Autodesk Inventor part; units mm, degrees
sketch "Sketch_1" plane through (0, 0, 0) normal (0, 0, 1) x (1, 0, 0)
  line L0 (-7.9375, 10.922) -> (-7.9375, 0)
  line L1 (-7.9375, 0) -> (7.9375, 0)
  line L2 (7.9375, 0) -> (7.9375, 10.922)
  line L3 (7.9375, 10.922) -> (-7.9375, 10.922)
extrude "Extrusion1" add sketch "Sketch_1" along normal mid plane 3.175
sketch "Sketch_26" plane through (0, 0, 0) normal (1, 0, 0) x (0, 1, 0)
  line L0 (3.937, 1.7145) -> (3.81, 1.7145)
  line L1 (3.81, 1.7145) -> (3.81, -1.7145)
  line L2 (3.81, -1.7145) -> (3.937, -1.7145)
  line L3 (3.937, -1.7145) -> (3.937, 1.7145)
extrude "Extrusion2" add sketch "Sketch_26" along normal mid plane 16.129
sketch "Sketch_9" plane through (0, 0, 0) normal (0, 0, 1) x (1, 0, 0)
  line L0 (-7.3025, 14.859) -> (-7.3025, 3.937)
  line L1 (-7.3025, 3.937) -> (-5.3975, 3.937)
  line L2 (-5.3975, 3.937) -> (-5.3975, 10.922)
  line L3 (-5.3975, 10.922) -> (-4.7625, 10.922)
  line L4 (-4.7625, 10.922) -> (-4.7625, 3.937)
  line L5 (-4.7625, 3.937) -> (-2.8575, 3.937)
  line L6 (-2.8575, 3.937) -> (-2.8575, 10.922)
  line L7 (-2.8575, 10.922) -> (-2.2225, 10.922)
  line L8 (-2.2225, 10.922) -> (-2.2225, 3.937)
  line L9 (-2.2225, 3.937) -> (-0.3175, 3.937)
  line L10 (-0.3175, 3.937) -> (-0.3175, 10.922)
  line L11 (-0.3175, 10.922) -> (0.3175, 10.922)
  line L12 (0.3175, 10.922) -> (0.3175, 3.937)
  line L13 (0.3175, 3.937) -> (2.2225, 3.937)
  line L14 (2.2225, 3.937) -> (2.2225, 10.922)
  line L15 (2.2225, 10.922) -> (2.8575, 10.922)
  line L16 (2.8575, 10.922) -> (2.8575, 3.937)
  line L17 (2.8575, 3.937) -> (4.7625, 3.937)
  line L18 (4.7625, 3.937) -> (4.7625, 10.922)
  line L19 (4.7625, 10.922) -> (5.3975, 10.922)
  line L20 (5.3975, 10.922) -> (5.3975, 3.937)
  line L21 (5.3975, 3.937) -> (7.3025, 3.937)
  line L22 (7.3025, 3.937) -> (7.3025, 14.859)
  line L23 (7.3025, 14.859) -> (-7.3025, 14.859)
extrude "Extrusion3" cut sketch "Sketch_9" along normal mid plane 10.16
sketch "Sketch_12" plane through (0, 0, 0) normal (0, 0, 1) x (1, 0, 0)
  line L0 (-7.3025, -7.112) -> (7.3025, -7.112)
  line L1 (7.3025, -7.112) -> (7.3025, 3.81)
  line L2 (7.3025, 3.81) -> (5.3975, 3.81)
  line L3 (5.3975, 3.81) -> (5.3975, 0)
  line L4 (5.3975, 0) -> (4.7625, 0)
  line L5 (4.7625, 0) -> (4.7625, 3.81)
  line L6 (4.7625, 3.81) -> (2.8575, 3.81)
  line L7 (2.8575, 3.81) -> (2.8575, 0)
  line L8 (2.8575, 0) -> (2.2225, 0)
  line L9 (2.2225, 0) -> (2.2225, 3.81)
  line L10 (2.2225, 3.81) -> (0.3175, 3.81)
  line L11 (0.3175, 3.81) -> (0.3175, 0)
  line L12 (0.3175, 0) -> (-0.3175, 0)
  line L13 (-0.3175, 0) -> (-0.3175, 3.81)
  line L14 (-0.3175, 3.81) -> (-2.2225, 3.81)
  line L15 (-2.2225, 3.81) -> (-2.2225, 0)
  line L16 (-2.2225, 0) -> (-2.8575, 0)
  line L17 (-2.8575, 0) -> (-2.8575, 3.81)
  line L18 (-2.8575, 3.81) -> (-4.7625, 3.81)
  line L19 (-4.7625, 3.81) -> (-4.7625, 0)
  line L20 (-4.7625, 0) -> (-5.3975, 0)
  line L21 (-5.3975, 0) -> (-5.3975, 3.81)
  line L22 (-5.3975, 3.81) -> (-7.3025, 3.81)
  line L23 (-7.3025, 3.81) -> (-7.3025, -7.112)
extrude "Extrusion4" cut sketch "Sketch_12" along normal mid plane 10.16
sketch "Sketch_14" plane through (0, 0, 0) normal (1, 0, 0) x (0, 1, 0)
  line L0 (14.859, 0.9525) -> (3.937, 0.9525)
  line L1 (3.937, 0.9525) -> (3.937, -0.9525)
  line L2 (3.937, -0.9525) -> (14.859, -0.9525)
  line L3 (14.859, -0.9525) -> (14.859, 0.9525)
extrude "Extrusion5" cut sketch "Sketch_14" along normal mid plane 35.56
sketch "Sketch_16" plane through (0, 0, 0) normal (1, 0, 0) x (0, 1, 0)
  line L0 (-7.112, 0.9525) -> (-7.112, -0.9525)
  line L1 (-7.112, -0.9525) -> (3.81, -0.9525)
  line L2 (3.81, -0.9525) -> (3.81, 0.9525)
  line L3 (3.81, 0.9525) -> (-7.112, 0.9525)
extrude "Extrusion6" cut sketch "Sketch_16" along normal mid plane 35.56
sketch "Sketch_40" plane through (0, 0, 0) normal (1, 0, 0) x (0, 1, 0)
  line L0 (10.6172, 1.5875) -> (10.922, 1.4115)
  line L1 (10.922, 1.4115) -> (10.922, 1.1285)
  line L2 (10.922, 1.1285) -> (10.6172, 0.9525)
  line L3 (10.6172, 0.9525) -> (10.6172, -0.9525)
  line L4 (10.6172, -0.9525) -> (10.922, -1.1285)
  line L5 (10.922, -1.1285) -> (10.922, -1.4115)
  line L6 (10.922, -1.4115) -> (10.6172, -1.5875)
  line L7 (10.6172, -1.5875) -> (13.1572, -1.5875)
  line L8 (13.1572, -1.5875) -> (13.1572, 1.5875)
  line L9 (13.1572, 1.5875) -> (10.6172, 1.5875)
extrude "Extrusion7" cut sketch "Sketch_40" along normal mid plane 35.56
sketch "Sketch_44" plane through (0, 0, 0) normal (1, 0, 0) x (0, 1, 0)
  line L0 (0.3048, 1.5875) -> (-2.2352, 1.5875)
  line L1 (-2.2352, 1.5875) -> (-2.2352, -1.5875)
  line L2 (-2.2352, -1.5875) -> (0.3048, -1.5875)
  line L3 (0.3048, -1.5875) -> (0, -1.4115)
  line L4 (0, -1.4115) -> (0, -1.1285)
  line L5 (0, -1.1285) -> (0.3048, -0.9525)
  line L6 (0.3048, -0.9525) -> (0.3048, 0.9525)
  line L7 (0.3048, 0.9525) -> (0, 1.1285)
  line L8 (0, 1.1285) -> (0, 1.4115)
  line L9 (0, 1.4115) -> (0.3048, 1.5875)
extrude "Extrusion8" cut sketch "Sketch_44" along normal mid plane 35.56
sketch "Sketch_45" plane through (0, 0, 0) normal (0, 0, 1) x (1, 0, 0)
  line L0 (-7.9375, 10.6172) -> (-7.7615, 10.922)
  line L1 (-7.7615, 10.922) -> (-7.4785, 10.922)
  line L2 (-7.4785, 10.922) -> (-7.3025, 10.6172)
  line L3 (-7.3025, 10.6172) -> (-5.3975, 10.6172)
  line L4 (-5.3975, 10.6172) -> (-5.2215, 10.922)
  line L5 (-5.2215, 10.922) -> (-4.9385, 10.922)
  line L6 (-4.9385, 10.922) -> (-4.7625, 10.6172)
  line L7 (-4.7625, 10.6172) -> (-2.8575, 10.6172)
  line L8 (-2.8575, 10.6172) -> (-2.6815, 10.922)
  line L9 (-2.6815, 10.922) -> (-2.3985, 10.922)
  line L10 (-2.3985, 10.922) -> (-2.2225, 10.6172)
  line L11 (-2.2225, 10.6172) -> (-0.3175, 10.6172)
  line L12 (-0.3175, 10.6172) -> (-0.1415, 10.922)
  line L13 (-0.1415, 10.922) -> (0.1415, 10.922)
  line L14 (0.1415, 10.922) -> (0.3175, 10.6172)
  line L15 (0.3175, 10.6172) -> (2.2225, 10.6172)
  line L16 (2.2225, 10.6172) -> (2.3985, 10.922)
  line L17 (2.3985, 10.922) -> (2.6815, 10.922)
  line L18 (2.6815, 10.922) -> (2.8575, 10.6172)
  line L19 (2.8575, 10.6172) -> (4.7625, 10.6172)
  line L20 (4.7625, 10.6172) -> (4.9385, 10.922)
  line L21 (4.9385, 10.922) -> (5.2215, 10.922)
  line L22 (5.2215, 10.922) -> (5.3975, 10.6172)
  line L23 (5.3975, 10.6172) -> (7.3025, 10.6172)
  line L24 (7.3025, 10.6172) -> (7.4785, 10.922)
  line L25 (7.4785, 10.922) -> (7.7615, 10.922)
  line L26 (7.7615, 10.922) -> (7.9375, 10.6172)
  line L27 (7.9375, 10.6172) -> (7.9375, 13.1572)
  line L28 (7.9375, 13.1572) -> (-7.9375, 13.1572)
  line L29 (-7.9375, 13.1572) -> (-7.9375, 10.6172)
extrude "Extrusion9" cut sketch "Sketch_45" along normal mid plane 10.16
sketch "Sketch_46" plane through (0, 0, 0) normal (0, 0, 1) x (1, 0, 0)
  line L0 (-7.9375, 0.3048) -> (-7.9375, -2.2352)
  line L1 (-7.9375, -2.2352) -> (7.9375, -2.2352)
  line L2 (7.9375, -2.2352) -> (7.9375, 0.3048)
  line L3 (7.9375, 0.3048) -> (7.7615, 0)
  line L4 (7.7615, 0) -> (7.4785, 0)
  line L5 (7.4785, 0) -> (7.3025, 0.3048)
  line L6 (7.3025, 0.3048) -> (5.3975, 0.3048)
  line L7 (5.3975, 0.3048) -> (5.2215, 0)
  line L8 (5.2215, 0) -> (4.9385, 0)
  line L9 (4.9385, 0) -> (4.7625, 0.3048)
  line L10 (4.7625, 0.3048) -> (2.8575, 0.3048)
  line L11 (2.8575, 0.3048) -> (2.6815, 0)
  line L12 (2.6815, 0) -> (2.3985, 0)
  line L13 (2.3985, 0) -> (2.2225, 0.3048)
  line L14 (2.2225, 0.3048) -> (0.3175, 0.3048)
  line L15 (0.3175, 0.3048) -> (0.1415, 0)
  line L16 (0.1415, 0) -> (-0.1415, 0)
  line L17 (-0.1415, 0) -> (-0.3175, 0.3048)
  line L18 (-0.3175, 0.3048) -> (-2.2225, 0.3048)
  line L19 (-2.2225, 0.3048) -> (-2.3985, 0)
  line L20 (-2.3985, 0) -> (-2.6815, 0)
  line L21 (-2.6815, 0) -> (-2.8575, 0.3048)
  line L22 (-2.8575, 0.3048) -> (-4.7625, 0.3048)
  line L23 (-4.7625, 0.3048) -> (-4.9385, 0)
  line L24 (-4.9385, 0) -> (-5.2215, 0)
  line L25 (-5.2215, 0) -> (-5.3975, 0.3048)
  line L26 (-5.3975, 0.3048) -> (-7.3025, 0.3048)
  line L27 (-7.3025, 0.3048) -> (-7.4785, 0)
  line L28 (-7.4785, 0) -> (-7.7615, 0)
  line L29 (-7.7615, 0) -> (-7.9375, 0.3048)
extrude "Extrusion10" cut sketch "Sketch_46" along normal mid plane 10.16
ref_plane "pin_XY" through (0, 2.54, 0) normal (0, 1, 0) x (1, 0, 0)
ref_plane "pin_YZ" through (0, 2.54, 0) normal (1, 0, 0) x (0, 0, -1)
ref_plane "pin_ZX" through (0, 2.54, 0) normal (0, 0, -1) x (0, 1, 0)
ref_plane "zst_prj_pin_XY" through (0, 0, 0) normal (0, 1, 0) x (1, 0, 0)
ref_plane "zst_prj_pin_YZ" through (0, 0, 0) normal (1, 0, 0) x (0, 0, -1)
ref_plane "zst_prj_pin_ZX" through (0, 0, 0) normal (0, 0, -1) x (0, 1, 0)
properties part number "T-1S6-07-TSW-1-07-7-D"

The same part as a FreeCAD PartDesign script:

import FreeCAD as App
import Part
import Sketcher
Q = App.Units.Quantity


def add_polygon(sketch, points):
    """Adds a closed chain of lines whose ends are joined by coincident constraints."""
    first, n = sketch.GeometryCount, len(points)
    for a, b in zip(points, points[1:] + points[:1]):
        sketch.addGeometry(Part.LineSegment(App.Vector(*a, 0), App.Vector(*b, 0)), False)
    for i in range(n):
        sketch.addConstraint(Sketcher.Constraint("Coincident", first + i, 2, first + (i + 1) % n, 1))

doc = App.newDocument("Part")
body = doc.addObject("PartDesign::Body", "Body")

sketch1 = body.newObject("Sketcher::SketchObject", "Sketch")
sketch1.AttachmentSupport = (doc.getObject("XY_Plane"), [""])
sketch1.MapMode = "FlatFace"
add_polygon(sketch1, [(8, 11), (-8, 11), (-8, 0), (8, 0)])
sketch1.addConstraint([
    Sketcher.Constraint("Horizontal", 0),
    Sketcher.Constraint("Vertical", 1),
    Sketcher.Constraint("Horizontal", 2),
    Sketcher.Constraint("Vertical", 3),
    Sketcher.Constraint("Symmetric", 1, 2, 2, 2, -1, 1),
    Sketcher.Constraint("DistanceY", 1, 2, 1, 1, Q("0.43 in")),
    Sketcher.Constraint("DistanceX", 0, 2, 0, 1, Q("0.625 in")),
])
pad1 = body.newObject("PartDesign::Pad", "Pad")
pad1.Profile = sketch1
pad1.Length = Q("0.125 in")
pad1.Midplane = True

sketch2 = body.newObject("Sketcher::SketchObject", "Sketch001")
sketch2.AttachmentSupport = (doc.getObject("YZ_Plane"), [""])
sketch2.MapMode = "FlatFace"
add_polygon(sketch2, [(3.94, -1.71), (3.94, 1.71), (3.81, 1.71), (3.81, -1.71)])
sketch2.addConstraint([
    Sketcher.Constraint("Vertical", 0),
    Sketcher.Constraint("Horizontal", 1),
    Sketcher.Constraint("Vertical", 2),
    Sketcher.Constraint("Horizontal", 3),
    Sketcher.Constraint("DistanceX", 1, 2, 1, 1, Q("0.005 in")),
    Sketcher.Constraint("DistanceY", 0, 1, 0, 2, Q("0.135 in")),
    Sketcher.Constraint("DistanceX", -1, 1, 1, 2, Q("0.15 in")),
    Sketcher.Constraint("DistanceY", -1, 1, 0, 2, Q("0.0675 in")),
])
pad2 = body.newObject("PartDesign::Pad", "Pad001")
pad2.Profile = sketch2
pad2.Length = Q("0.635 in")
pad2.Midplane = True

sketch3 = body.newObject("Sketcher::SketchObject", "Sketch002")
sketch3.AttachmentSupport = (doc.getObject("XY_Plane"), [""])
sketch3.MapMode = "FlatFace"
add_polygon(sketch3, [(7.3, 14.9), (-7.3, 14.9), (-7.3, 3.9), (-5.4, 3.9), (-5.4, 10.9), (-4.8, 10.9), (-4.8, 3.9), (-2.9, 3.9), (-2.9, 10.9), (-2.2, 10.9), (-2.2, 3.9), (-0.3, 3.9), (-0.3, 10.9), (0.3, 10.9), (0.3, 3.9), (2.2, 3.9), (2.2, 10.9), (2.9, 10.9), (2.9, 3.9), (4.8, 3.9), (4.8, 10.9), (5.4, 10.9), (5.4, 3.9), (7.3, 3.9)])
sketch3.addConstraint([
    Sketcher.Constraint("Horizontal", 0),
    Sketcher.Constraint("Vertical", 1),
    Sketcher.Constraint("Horizontal", 2),
    Sketcher.Constraint("Vertical", 3),
    Sketcher.Constraint("Horizontal", 4),
    Sketcher.Constraint("Vertical", 5),
    Sketcher.Constraint("Horizontal", 6),
    Sketcher.Constraint("Vertical", 7),
    Sketcher.Constraint("Horizontal", 8),
    Sketcher.Constraint("Vertical", 9),
    Sketcher.Constraint("Horizontal", 10),
    Sketcher.Constraint("Vertical", 11),
    Sketcher.Constraint("Horizontal", 12),
    Sketcher.Constraint("Vertical", 13),
    Sketcher.Constraint("Horizontal", 14),
    Sketcher.Constraint("Vertical", 15),
    Sketcher.Constraint("Horizontal", 16),
    Sketcher.Constraint("Vertical", 17),
    Sketcher.Constraint("Horizontal", 18),
    Sketcher.Constraint("Vertical", 19),
    Sketcher.Constraint("Horizontal", 20),
    Sketcher.Constraint("Vertical", 21),
    Sketcher.Constraint("Horizontal", 22),
    Sketcher.Constraint("Vertical", 23),
    Sketcher.Constraint("Symmetric", 10, 2, 13, 2, -2),
    Sketcher.Constraint("Symmetric", 8, 2, 15, 2, -2),
    Sketcher.Constraint("Symmetric", 6, 2, 17, 2, -2),
    Sketcher.Constraint("Symmetric", 4, 2, 19, 2, -2),
    Sketcher.Constraint("Symmetric", 2, 2, 21, 2, -2),
    Sketcher.Constraint("Horizontal", 2, 2, 5, 2),
    Sketcher.Constraint("Horizontal", 4, 2, 7, 2),
    Sketcher.Constraint("Horizontal", 6, 2, 9, 2),
    Sketcher.Constraint("Horizontal", 8, 2, 11, 2),
    Sketcher.Constraint("Equal", 2, 6),
    Sketcher.Constraint("Equal", 4, 8),
    Sketcher.Constraint("Equal", 6, 10),
    Sketcher.Constraint("Equal", 8, 12),
    Sketcher.Constraint("Equal", 18, 22),
    Sketcher.Constraint("DistanceY", 1, 2, 1, 1, Q("0.43 in")),
    Sketcher.Constraint("DistanceX", 0, 2, 4, 2, Q("0.1 in")),
    Sketcher.Constraint("DistanceX", 0, 2, 0, 1, Q("0.575 in")),
    Sketcher.Constraint("DistanceY", 3, 1, 3, 2, Q("0.275 in")),
    Sketcher.Constraint("DistanceY", -1, 1, 3, 2, Q("0.43 in")),
])
pocket1 = body.newObject("PartDesign::Pocket", "Pocket")
pocket1.Profile = sketch3
pocket1.Length = Q("0.4 in")
pocket1.Midplane = True

sketch4 = body.newObject("Sketcher::SketchObject", "Sketch003")
sketch4.AttachmentSupport = (doc.getObject("XY_Plane"), [""])
sketch4.MapMode = "FlatFace"
add_polygon(sketch4, [(-7.3, 3.8), (-7.3, -7.1), (7.3, -7.1), (7.3, 3.8), (5.4, 3.8), (5.4, 0), (4.8, 0), (4.8, 3.8), (2.9, 3.8), (2.9, 0), (2.2, 0), (2.2, 3.8), (0.3, 3.8), (0.3, 0), (-0.3, 0), (-0.3, 3.8), (-2.2, 3.8), (-2.2, 0), (-2.9, 0), (-2.9, 3.8), (-4.8, 3.8), (-4.8, 0), (-5.4, 0), (-5.4, 3.8)])
sketch4.addConstraint([
    Sketcher.Constraint("Vertical", 0),
    Sketcher.Constraint("Horizontal", 1),
    Sketcher.Constraint("Vertical", 2),
    Sketcher.Constraint("Horizontal", 3),
    Sketcher.Constraint("Vertical", 4),
    Sketcher.Constraint("Horizontal", 5),
    Sketcher.Constraint("Vertical", 6),
    Sketcher.Constraint("Horizontal", 7),
    Sketcher.Constraint("Vertical", 8),
    Sketcher.Constraint("Horizontal", 9),
    Sketcher.Constraint("Vertical", 10),
    Sketcher.Constraint("Horizontal", 11),
    Sketcher.Constraint("Vertical", 12),
    Sketcher.Constraint("Horizontal", 13),
    Sketcher.Constraint("Vertical", 14),
    Sketcher.Constraint("Horizontal", 15),
    Sketcher.Constraint("Vertical", 16),
    Sketcher.Constraint("Horizontal", 17),
    Sketcher.Constraint("Vertical", 18),
    Sketcher.Constraint("Horizontal", 19),
    Sketcher.Constraint("Vertical", 20),
    Sketcher.Constraint("Horizontal", 21),
    Sketcher.Constraint("Vertical", 22),
    Sketcher.Constraint("Horizontal", 23),
    Sketcher.Constraint("Symmetric", 12, 2, 13, 2, -1, 1),
    Sketcher.Constraint("Symmetric", 9, 2, 16, 2, -1, 1),
    Sketcher.Constraint("Symmetric", 5, 2, 20, 2, -1, 1),
    Sketcher.Constraint("Symmetric", 8, 2, 17, 2, -2),
    Sketcher.Constraint("Symmetric", 4, 2, 21, 2, -2),
    Sketcher.Constraint("Symmetric", 2, 2, 23, 2, -2),
    Sketcher.Constraint("Horizontal", 3, 2, 6, 2),
    Sketcher.Constraint("Horizontal", 7, 2, 10, 2),
    Sketcher.Constraint("Horizontal", 11, 2, 14, 2),
    Sketcher.Constraint("Horizontal", 15, 2, 18, 2),
    Sketcher.Constraint("Equal", 3, 7),
    Sketcher.Constraint("Equal", 5, 9),
    Sketcher.Constraint("Equal", 7, 11),
    Sketcher.Constraint("Equal", 9, 13),
    Sketcher.Constraint("DistanceY", 0, 2, 0, 1, Q("0.43 in")),
    Sketcher.Constraint("DistanceY", 4, 2, 4, 1, Q("0.15 in")),
    Sketcher.Constraint("DistanceX", 0, 2, 3, 2, Q("0.5 in")),
    Sketcher.Constraint("DistanceX", 1, 1, 1, 2, Q("0.575 in")),
])
pocket2 = body.newObject("PartDesign::Pocket", "Pocket001")
pocket2.Profile = sketch4
pocket2.Length = Q("0.4 in")
pocket2.Midplane = True

sketch5 = body.newObject("Sketcher::SketchObject", "Sketch004")
sketch5.AttachmentSupport = (doc.getObject("YZ_Plane"), [""])
sketch5.MapMode = "FlatFace"
add_polygon(sketch5, [(14.9, -1), (14.9, 1), (3.9, 1), (3.9, -1)])
sketch5.addConstraint([
    Sketcher.Constraint("Vertical", 0),
    Sketcher.Constraint("Horizontal", 1),
    Sketcher.Constraint("Vertical", 2),
    Sketcher.Constraint("Horizontal", 3),
    Sketcher.Constraint("DistanceX", 1, 2, 1, 1, Q("0.43 in")),
    Sketcher.Constraint("DistanceY", 0, 1, 0, 2, Q("0.075 in")),
    Sketcher.Constraint("DistanceX", -1, 1, 0, 2, Q("0.585 in")),
    Sketcher.Constraint("DistanceY", -1, 1, 0, 2, Q("0.0375 in")),
])
pocket3 = body.newObject("PartDesign::Pocket", "Pocket002")
pocket3.Profile = sketch5
pocket3.Length = Q("1.4 in")
pocket3.Midplane = True

sketch6 = body.newObject("Sketcher::SketchObject", "Sketch005")
sketch6.AttachmentSupport = (doc.getObject("YZ_Plane"), [""])
sketch6.MapMode = "FlatFace"
add_polygon(sketch6, [(3.8, 1), (-7.1, 1), (-7.1, -1), (3.8, -1)])
sketch6.addConstraint([
    Sketcher.Constraint("Horizontal", 0),
    Sketcher.Constraint("Vertical", 1),
    Sketcher.Constraint("Horizontal", 2),
    Sketcher.Constraint("Vertical", 3),
    Sketcher.Constraint("DistanceX", 0, 2, 0, 1, Q("0.43 in")),
    Sketcher.Constraint("DistanceY", 1, 2, 1, 1, Q("0.075 in")),
    Sketcher.Constraint("DistanceX", 0, 2, -1, 1, Q("0.28 in")),
    Sketcher.Constraint("DistanceY", -1, 1, 0, 2, Q("0.0375 in")),
])
pocket4 = body.newObject("PartDesign::Pocket", "Pocket003")
pocket4.Profile = sketch6
pocket4.Length = Q("1.4 in")
pocket4.Midplane = True

sketch7 = body.newObject("Sketcher::SketchObject", "Sketch006")
sketch7.AttachmentSupport = (doc.getObject("YZ_Plane"), [""])
sketch7.MapMode = "FlatFace"
add_polygon(sketch7, [(13.16, 1.59), (10.62, 1.59), (10.92, 1.41), (10.92, 1.13), (10.62, 0.95), (10.62, -0.95), (10.92, -1.13), (10.92, -1.41), (10.62, -1.59), (13.16, -1.59)])
sketch7.addConstraint([
    Sketcher.Constraint("Horizontal", 0),
    Sketcher.Constraint("Vertical", 2),
    Sketcher.Constraint("Vertical", 4),
    Sketcher.Constraint("Vertical", 6),
    Sketcher.Constraint("Horizontal", 8),
    Sketcher.Constraint("Vertical", 9),
    Sketcher.Constraint("Symmetric", 2, 2, 5, 2, -1),
    Sketcher.Constraint("Symmetric", 0, 2, 7, 2, -1),
    Sketcher.Constraint("Parallel", 1, 5),
    Sketcher.Constraint("Parallel", 3, 7),
    Sketcher.Constraint("Vertical", 0, 2, 3, 2),
    Sketcher.Constraint("Equal", 2, 6),
    Sketcher.Constraint("DistanceX", 0, 2, 0, 1, Q("0.1 in")),
    Sketcher.Constraint("DistanceY", 4, 2, 0, 2, Q("0.1 in")),
    Sketcher.Constraint("DistanceY", 4, 2, 4, 1, Q("0.075 in")),
    Sketcher.Constraint("DistanceX", -1, 1, 1, 2, Q("0.43 in")),
    Sketcher.Constraint("DistanceX", -1, 1, 0, 2, Q("0.418 in")),
    Sketcher.Constraint("DistanceY", 2, 2, 2, 1, 0.283),
])
pocket5 = body.newObject("PartDesign::Pocket", "Pocket004")
pocket5.Profile = sketch7
pocket5.Length = Q("1.4 in")
pocket5.Midplane = True

sketch8 = body.newObject("Sketcher::SketchObject", "Sketch007")
sketch8.AttachmentSupport = (doc.getObject("YZ_Plane"), [""])
sketch8.MapMode = "FlatFace"
add_polygon(sketch8, [(0, 1.41), (0.3, 1.59), (-2.24, 1.59), (-2.24, -1.59), (0.3, -1.59), (0, -1.41), (0, -1.13), (0.3, -0.95), (0.3, 0.95), (0, 1.13)])
sketch8.addConstraint([
    Sketcher.Constraint("Horizontal", 1),
    Sketcher.Constraint("Vertical", 2),
    Sketcher.Constraint("Horizontal", 3),
    Sketcher.Constraint("Vertical", 5),
    Sketcher.Constraint("Vertical", 7),
    Sketcher.Constraint("Vertical", 9),
    Sketcher.Constraint("Symmetric", 5, 2, 8, 2, -1, 1),
    Sketcher.Constraint("Symmetric", 0, 2, 3, 2, -1),
    Sketcher.Constraint("Symmetric", 4, 2, 9, 2, -1),
    Sketcher.Constraint("Parallel", 0, 6),
    Sketcher.Constraint("Parallel", 4, 8),
    Sketcher.Constraint("Vertical", 3, 2, 6, 2),
    Sketcher.Constraint("DistanceX", 1, 2, 1, 1, Q("0.1 in")),
    Sketcher.Constraint("DistanceY", 6, 2, 0, 2, Q("0.1 in")),
    Sketcher.Constraint("DistanceY", 2, 2, 2, 1, Q("0.125 in")),
    Sketcher.Constraint("DistanceX", -1, 1, 0, 2, Q("0.012 in")),
    Sketcher.Constraint("DistanceY", 5, 1, 5, 2, 0.283),
])
pocket6 = body.newObject("PartDesign::Pocket", "Pocket005")
pocket6.Profile = sketch8
pocket6.Length = Q("1.4 in")
pocket6.Midplane = True

sketch9 = body.newObject("Sketcher::SketchObject", "Sketch008")
sketch9.AttachmentSupport = (doc.getObject("XY_Plane"), [""])
sketch9.MapMode = "FlatFace"
add_polygon(sketch9, [(-7.94, 13.16), (-7.94, 10.62), (-7.76, 10.92), (-7.48, 10.92), (-7.3, 10.62), (-5.4, 10.62), (-5.22, 10.92), (-4.94, 10.92), (-4.76, 10.62), (-2.86, 10.62), (-2.68, 10.92), (-2.4, 10.92), (-2.22, 10.62), (-0.32, 10.62), (-0.14, 10.92), (0.14, 10.92), (0.32, 10.62), (2.22, 10.62), (2.4, 10.92), (2.68, 10.92), (2.86, 10.62), (4.76, 10.62), (4.94, 10.92), (5.22, 10.92), (5.4, 10.62), (7.3, 10.62), (7.48, 10.92), (7.76, 10.92), (7.94, 10.62), (7.94, 13.16)])
sketch9.addConstraint([
    Sketcher.Constraint("Vertical", 0),
    Sketcher.Constraint("Horizontal", 2),
    Sketcher.Constraint("Horizontal", 4),
    Sketcher.Constraint("Horizontal", 6),
    Sketcher.Constraint("Horizontal", 8),
    Sketcher.Constraint("Horizontal", 10),
    Sketcher.Constraint("Horizontal", 12),
    Sketcher.Constraint("Horizontal", 14),
    Sketcher.Constraint("Horizontal", 16),
    Sketcher.Constraint("Horizontal", 18),
    Sketcher.Constraint("Horizontal", 20),
    Sketcher.Constraint("Horizontal", 22),
    Sketcher.Constraint("Horizontal", 24),
    Sketcher.Constraint("Horizontal", 26),
    Sketcher.Constraint("Vertical", 28),
    Sketcher.Constraint("Horizontal", 29),
    Sketcher.Constraint("Symmetric", 12, 2, 15, 2, -2),
    Sketcher.Constraint("Symmetric", 10, 2, 17, 2, -2),
    Sketcher.Constraint("Symmetric", 8, 2, 19, 2, -2),
    Sketcher.Constraint("Symmetric", 6, 2, 21, 2, -2),
    Sketcher.Constraint("Symmetric", 4, 2, 23, 2, -2),
    Sketcher.Constraint("Symmetric", 2, 2, 25, 2, -2),
    Sketcher.Constraint("Symmetric", 0, 2, 27, 2, -2),
    Sketcher.Constraint("Parallel", 1, 5),
    Sketcher.Constraint("Parallel", 3, 7),
    Sketcher.Constraint("Parallel", 5, 9),
    Sketcher.Constraint("Parallel", 7, 11),
    Sketcher.Constraint("Parallel", 9, 13),
    Sketcher.Constraint("Parallel", 11, 15),
    Sketcher.Constraint("Parallel", 13, 17),
    Sketcher.Constraint("Parallel", 15, 19),
    Sketcher.Constraint("Parallel", 17, 21),
    Sketcher.Constraint("Parallel", 19, 23),
    Sketcher.Constraint("Parallel", 21, 25),
    Sketcher.Constraint("Parallel", 23, 27),
    Sketcher.Constraint("Horizontal", 0, 2, 3, 2),
    Sketcher.Constraint("Horizontal", 2, 2, 5, 2),
    Sketcher.Constraint("Horizontal", 4, 2, 7, 2),
    Sketcher.Constraint("Horizontal", 6, 2, 9, 2),
    Sketcher.Constraint("Horizontal", 8, 2, 11, 2),
    Sketcher.Constraint("Horizontal", 10, 2, 13, 2),
    Sketcher.Constraint("Equal", 2, 6),
    Sketcher.Constraint("Equal", 4, 8),
    Sketcher.Constraint("Equal", 6, 10),
    Sketcher.Constraint("Equal", 8, 12),
    Sketcher.Constraint("Equal", 10, 14),
    Sketcher.Constraint("Equal", 12, 16),
    Sketcher.Constraint("DistanceY", 0, 2, 0, 1, Q("0.1 in")),
    Sketcher.Constraint("DistanceX", 0, 2, 4, 2, Q("0.1 in")),
    Sketcher.Constraint("DistanceX", 4, 1, 4, 2, Q("0.075 in")),
    Sketcher.Constraint("DistanceY", -1, 1, 1, 2, Q("0.43 in")),
    Sketcher.Constraint("DistanceY", -1, 1, 0, 2, Q("0.418 in")),
    Sketcher.Constraint("DistanceX", 2, 1, 2, 2, 0.283),
])
pocket7 = body.newObject("PartDesign::Pocket", "Pocket006")
pocket7.Profile = sketch9
pocket7.Length = Q("0.4 in")
pocket7.Midplane = True

sketch10 = body.newObject("Sketcher::SketchObject", "Sketch009")
sketch10.AttachmentSupport = (doc.getObject("XY_Plane"), [""])
sketch10.MapMode = "FlatFace"
add_polygon(sketch10, [(-7.76, 0), (-7.94, 0.3), (-7.94, -2.24), (7.94, -2.24), (7.94, 0.3), (7.76, 0), (7.48, 0), (7.3, 0.3), (5.4, 0.3), (5.22, 0), (4.94, 0), (4.76, 0.3), (2.86, 0.3), (2.68, 0), (2.4, 0), (2.22, 0.3), (0.32, 0.3), (0.14, 0), (-0.14, 0), (-0.32, 0.3), (-2.22, 0.3), (-2.4, 0), (-2.68, 0), (-2.86, 0.3), (-4.76, 0.3), (-4.94, 0), (-5.22, 0), (-5.4, 0.3), (-7.3, 0.3), (-7.48, 0)])
sketch10.addConstraint([
    Sketcher.Constraint("Vertical", 1),
    Sketcher.Constraint("Horizontal", 2),
    Sketcher.Constraint("Vertical", 3),
    Sketcher.Constraint("Horizontal", 5),
    Sketcher.Constraint("Horizontal", 7),
    Sketcher.Constraint("Horizontal", 9),
    Sketcher.Constraint("Horizontal", 11),
    Sketcher.Constraint("Horizontal", 13),
    Sketcher.Constraint("Horizontal", 15),
    Sketcher.Constraint("Horizontal", 17),
    Sketcher.Constraint("Horizontal", 19),
    Sketcher.Constraint("Horizontal", 21),
    Sketcher.Constraint("Horizontal", 23),
    Sketcher.Constraint("Horizontal", 25),
    Sketcher.Constraint("Horizontal", 27),
    Sketcher.Constraint("Horizontal", 29),
    Sketcher.Constraint("Symmetric", 16, 2, 17, 2, -1, 1),
    Sketcher.Constraint("Symmetric", 13, 2, 20, 2, -1, 1),
    Sketcher.Constraint("Symmetric", 9, 2, 24, 2, -1, 1),
    Sketcher.Constraint("Symmetric", 5, 2, 28, 2, -1, 1),
    Sketcher.Constraint("Symmetric", 0, 2, 3, 2, -2),
    Sketcher.Constraint("Symmetric", 15, 2, 18, 2, -2),
    Sketcher.Constraint("Symmetric", 12, 2, 21, 2, -2),
    Sketcher.Constraint("Symmetric", 11, 2, 22, 2, -2),
    Sketcher.Constraint("Symmetric", 8, 2, 25, 2, -2),
    Sketcher.Constraint("Symmetric", 7, 2, 26, 2, -2),
    Sketcher.Constraint("Symmetric", 4, 2, 29, 2, -2),
    Sketcher.Constraint("Parallel", 0, 6),
    Sketcher.Constraint("Parallel", 4, 8),
    Sketcher.Constraint("Parallel", 6, 10),
    Sketcher.Constraint("Parallel", 8, 12),
    Sketcher.Constraint("Parallel", 10, 14),
    Sketcher.Constraint("Parallel", 12, 16),
    Sketcher.Constraint("Parallel", 16, 20),
    Sketcher.Constraint("Parallel", 20, 24),
    Sketcher.Constraint("Parallel", 24, 28),
    Sketcher.Constraint("Horizontal", 3, 2, 6, 2),
    Sketcher.Constraint("Horizontal", 7, 2, 10, 2),
    Sketcher.Constraint("Horizontal", 11, 2, 14, 2),
    Sketcher.Constraint("Equal", 5, 9),
    Sketcher.Constraint("Equal", 7, 11),
    Sketcher.Constraint("Equal", 9, 13),
    Sketcher.Constraint("Equal", 11, 15),
    Sketcher.Constraint("Equal", 13, 17),
    Sketcher.Constraint("DistanceY", 1, 2, 1, 1, Q("0.1 in")),
    Sketcher.Constraint("DistanceX", 0, 2, 6, 2, Q("0.6 in")),
    Sketcher.Constraint("DistanceX", 2, 1, 2, 2, Q("0.625 in")),
    Sketcher.Constraint("DistanceY", -1, 1, 0, 2, Q("0.012 in")),
    Sketcher.Constraint("DistanceX", 5, 2, 5, 1, 0.283),
])
pocket8 = body.newObject("PartDesign::Pocket", "Pocket007")
pocket8.Profile = sketch10
pocket8.Length = Q("0.4 in")
pocket8.Midplane = True

doc.recompute()
